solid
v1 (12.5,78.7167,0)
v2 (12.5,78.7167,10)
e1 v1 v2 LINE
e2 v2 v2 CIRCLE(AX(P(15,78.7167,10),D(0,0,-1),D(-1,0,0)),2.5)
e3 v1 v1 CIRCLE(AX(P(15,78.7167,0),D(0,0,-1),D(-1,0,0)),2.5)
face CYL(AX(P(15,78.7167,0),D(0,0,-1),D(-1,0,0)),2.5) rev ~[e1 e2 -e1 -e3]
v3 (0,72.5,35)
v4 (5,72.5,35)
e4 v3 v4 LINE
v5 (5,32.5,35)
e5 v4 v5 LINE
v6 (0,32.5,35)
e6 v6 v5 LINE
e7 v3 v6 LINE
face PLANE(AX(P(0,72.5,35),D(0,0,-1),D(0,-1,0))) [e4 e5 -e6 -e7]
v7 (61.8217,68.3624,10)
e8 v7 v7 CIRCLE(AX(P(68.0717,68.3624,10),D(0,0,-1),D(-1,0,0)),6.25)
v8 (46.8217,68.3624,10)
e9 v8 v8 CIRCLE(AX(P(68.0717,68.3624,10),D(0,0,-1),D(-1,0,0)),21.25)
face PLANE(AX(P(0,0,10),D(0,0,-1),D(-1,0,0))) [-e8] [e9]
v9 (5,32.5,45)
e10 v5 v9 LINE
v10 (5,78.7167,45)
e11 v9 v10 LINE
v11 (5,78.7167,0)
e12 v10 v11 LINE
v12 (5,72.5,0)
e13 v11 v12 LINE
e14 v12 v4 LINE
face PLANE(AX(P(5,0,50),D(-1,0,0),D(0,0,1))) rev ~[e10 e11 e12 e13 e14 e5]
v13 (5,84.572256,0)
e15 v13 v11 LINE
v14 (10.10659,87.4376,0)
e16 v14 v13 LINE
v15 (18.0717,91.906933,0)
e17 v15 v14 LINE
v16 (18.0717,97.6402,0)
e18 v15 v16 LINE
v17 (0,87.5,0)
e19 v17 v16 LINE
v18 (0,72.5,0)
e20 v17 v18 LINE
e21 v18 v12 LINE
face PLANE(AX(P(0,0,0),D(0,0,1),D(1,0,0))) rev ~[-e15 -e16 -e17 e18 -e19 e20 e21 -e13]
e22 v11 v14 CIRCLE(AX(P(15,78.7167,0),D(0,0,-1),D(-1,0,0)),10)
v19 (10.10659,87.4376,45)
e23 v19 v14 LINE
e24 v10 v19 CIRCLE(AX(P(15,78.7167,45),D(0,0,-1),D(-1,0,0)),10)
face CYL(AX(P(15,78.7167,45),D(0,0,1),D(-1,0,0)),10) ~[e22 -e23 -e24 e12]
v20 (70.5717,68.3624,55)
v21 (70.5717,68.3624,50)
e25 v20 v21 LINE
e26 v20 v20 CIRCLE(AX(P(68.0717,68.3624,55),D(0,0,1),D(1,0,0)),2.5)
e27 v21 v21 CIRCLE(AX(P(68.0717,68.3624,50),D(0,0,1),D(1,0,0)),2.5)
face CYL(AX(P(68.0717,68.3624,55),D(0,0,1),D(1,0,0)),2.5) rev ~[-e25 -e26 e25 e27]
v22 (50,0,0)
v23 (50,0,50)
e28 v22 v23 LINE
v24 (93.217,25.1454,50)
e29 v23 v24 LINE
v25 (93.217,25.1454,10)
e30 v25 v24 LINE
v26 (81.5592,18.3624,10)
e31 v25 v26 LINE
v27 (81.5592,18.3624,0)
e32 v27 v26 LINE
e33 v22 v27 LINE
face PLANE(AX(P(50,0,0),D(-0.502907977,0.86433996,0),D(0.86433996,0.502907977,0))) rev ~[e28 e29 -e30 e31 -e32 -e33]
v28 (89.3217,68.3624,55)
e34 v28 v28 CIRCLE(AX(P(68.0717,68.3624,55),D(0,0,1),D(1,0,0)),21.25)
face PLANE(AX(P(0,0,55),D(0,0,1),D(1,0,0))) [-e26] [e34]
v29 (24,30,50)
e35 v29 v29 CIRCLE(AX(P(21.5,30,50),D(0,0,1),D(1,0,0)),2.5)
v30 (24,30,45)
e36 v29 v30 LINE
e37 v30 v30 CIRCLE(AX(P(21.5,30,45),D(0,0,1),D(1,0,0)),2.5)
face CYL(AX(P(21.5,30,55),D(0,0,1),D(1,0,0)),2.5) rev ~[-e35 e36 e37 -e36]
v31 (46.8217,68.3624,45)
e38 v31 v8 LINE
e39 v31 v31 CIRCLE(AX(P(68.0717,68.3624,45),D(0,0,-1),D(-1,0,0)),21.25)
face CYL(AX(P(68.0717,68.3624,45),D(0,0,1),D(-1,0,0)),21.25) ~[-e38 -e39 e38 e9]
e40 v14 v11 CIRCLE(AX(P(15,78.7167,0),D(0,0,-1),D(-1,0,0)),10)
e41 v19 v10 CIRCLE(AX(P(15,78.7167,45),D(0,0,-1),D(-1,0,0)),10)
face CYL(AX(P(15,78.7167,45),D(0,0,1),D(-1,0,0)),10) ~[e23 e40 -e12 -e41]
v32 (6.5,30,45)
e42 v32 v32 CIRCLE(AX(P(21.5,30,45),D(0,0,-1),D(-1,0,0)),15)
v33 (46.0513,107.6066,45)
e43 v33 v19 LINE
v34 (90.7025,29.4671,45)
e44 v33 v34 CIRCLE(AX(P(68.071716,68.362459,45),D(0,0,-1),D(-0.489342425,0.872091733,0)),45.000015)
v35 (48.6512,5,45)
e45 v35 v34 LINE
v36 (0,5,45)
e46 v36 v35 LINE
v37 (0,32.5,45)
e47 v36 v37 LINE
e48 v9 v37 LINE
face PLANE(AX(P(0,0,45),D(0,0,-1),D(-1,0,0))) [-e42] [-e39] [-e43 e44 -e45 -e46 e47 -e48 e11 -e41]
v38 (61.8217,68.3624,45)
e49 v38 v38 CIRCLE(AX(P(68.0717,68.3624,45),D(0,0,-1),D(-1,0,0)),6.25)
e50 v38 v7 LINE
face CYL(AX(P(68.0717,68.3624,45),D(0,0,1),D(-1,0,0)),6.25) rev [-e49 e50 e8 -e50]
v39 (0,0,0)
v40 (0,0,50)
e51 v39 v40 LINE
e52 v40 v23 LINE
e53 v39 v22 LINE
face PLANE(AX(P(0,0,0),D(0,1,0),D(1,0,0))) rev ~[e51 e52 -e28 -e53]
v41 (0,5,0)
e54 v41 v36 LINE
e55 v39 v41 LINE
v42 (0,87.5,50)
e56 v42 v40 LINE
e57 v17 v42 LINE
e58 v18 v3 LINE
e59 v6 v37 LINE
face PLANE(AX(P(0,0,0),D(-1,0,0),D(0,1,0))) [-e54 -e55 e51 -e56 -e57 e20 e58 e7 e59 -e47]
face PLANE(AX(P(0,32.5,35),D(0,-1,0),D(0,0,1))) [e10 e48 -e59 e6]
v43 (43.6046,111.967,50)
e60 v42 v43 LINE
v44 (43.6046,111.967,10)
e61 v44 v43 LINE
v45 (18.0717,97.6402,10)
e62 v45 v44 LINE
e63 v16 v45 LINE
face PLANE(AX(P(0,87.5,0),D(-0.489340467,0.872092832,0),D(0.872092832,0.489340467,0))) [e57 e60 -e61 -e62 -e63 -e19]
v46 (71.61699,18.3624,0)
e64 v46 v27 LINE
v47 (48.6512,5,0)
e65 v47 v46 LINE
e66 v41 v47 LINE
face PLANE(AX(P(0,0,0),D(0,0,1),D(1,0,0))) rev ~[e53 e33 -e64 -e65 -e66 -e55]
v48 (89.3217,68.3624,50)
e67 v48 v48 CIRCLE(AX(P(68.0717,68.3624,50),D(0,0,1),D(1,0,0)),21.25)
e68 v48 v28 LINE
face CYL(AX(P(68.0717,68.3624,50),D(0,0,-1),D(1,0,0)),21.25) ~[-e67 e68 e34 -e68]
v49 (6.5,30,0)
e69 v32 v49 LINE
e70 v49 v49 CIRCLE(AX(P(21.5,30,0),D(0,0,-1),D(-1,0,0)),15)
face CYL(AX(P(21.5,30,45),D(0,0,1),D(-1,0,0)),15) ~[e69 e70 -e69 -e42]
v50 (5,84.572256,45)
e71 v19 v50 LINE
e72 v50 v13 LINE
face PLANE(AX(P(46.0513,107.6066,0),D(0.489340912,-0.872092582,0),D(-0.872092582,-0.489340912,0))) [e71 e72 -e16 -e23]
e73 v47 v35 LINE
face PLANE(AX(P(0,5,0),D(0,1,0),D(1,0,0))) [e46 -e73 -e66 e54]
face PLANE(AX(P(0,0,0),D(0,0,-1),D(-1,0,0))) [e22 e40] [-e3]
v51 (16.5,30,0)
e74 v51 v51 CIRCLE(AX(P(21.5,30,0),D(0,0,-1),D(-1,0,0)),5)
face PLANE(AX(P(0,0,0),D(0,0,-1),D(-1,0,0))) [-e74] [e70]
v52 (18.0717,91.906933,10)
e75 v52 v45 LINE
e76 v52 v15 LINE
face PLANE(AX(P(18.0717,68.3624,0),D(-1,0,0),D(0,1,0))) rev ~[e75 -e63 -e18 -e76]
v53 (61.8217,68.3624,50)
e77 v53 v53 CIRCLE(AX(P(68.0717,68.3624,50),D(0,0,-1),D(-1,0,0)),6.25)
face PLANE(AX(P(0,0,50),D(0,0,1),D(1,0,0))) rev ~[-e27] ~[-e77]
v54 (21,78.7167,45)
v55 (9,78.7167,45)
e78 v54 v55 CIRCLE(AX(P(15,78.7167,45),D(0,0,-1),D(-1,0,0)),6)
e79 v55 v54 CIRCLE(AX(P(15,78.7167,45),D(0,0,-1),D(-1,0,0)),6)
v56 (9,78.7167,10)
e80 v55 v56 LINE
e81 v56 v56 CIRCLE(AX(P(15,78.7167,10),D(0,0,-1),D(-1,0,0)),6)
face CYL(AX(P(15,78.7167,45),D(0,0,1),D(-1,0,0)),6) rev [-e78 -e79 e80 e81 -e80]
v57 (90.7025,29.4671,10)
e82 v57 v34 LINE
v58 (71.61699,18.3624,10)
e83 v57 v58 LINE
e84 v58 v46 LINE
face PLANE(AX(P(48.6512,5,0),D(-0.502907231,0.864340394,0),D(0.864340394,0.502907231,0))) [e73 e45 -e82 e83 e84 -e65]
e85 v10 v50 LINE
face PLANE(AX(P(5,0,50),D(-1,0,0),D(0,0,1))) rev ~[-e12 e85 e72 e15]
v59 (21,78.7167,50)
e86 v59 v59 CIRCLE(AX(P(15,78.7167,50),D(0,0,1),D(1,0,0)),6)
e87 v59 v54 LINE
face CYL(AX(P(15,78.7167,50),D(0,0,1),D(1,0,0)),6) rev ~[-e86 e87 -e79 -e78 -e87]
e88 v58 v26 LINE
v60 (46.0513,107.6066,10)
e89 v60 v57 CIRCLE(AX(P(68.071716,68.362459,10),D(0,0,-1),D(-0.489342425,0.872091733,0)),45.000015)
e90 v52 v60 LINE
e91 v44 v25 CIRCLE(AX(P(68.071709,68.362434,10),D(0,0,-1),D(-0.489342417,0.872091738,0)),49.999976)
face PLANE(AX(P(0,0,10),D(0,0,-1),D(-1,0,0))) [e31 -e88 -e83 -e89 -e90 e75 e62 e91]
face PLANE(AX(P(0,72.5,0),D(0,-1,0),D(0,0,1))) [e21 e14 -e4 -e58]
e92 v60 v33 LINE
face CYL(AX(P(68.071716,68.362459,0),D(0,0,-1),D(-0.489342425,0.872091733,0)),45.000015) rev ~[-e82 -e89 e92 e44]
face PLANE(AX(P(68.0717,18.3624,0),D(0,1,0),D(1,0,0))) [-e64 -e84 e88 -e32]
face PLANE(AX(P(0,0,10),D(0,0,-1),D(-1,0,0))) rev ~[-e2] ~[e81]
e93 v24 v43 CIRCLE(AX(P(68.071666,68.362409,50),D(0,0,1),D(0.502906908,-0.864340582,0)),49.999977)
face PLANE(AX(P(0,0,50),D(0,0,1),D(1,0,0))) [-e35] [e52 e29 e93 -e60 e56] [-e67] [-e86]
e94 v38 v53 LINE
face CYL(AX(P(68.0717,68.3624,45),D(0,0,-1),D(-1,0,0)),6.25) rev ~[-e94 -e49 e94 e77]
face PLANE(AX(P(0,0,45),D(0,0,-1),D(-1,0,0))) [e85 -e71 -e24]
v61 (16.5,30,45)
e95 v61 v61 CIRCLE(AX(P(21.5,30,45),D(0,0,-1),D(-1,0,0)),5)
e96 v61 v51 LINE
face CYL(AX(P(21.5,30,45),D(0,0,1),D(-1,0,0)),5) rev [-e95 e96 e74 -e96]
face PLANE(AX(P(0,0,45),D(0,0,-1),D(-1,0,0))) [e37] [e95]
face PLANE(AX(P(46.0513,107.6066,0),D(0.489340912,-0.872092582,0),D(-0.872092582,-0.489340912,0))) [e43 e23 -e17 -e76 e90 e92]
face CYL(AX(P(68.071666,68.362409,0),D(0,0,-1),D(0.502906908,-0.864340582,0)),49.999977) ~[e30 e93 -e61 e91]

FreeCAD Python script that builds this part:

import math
import FreeCAD as App
import Part
import Sketcher
from FreeCAD import Vector


def add_polygon(sketch, points):
    """Adds a closed chain of lines whose ends are joined by coincident constraints."""
    first, n = sketch.GeometryCount, len(points)
    for a, b in zip(points, points[1:] + points[:1]):
        sketch.addGeometry(Part.LineSegment(App.Vector(*a, 0), App.Vector(*b, 0)), False)
    for i in range(n):
        sketch.addConstraint(Sketcher.Constraint("Coincident", first + i, 2, first + (i + 1) % n, 1))

doc = App.newDocument("Part")
body = doc.addObject("PartDesign::Body", "Body")

sketch1 = body.newObject("Sketcher::SketchObject", "Sketch")
sketch1.AttachmentSupport = (doc.getObject("XY_Plane"), [""])
sketch1.MapMode = "FlatFace"
sketch1.addGeometry(Part.LineSegment(Vector(0, 87.5, 0), Vector(0, 0, 0)), False)
sketch1.addGeometry(Part.LineSegment(Vector(0, 0, 0), Vector(50, 0, 0)), False)
sketch1.addGeometry(Part.LineSegment(Vector(50, 0, 0), Vector(93.217, 25.1454, 0)), False)
sketch1.addGeometry(Part.ArcOfCircle(Part.Circle(Vector(68.0717, 68.3624, 0), Vector(0, 0, 1), 50), math.radians(-59.807522), math.radians(119.297342)), False)
sketch1.addGeometry(Part.LineSegment(Vector(43.6046, 111.967, 0), Vector(0, 87.5, 0)), False)
sketch1.addConstraint(Sketcher.Constraint("Coincident", 0, 2, 1, 1))
sketch1.addConstraint(Sketcher.Constraint("Coincident", 1, 2, 2, 1))
sketch1.addConstraint(Sketcher.Constraint("Tangent", 2, 2, 3, 1))
sketch1.addConstraint(Sketcher.Constraint("Tangent", 3, 2, 4, 1))
sketch1.addConstraint(Sketcher.Constraint("Coincident", 4, 2, 0, 1))
sketch1.addConstraint(Sketcher.Constraint("Vertical", 0))
sketch1.addConstraint(Sketcher.Constraint("Horizontal", 1))
sketch1.addConstraint(Sketcher.Constraint("Coincident", 0, 2, -1, 1))
sketch1.addConstraint(Sketcher.Constraint("Equal", 2, 4))
sketch1.addConstraint(Sketcher.Constraint("Radius", 3, 50.0))
sketch1.addConstraint(Sketcher.Constraint("DistanceX", 1, 1, 1, 2, 50.0))
sketch1.addConstraint(Sketcher.Constraint("Distance", 2, 50.0))
sketch1.addConstraint(Sketcher.Constraint("DistanceY", 0, 2, 0, 1, 87.5))
pad1 = body.newObject("PartDesign::Pad", "Pad")
pad1.Profile = sketch1
pad1.Length = 50

sketch2 = body.newObject("Sketcher::SketchObject", "Sketch001")
sketch2.AttachmentSupport = (doc.getObject("XY_Plane"), [""])
sketch2.MapMode = "FlatFace"
sketch2.addGeometry(Part.LineSegment(Vector(0, 5, 0), Vector(0, 81.7667, 0)), False)
sketch2.addGeometry(Part.LineSegment(Vector(0, 81.7667, 0), Vector(46.0513, 107.6066, 0)), False)
sketch2.addGeometry(Part.ArcOfCircle(Part.Circle(Vector(68.0717, 68.3624, 0), Vector(0, 0, 1), 45.000058), math.radians(-59.807489), math.radians(119.297315)), False)
sketch2.addGeometry(Part.LineSegment(Vector(90.7025, 29.4671, 0), Vector(48.6512, 5, 0)), False)
sketch2.addGeometry(Part.LineSegment(Vector(48.6512, 5, 0), Vector(0, 5, 0)), False)
sketch2.addConstraint(Sketcher.Constraint("Coincident", 0, 2, 1, 1))
sketch2.addConstraint(Sketcher.Constraint("Tangent", 1, 2, 2, 2))
sketch2.addConstraint(Sketcher.Constraint("Tangent", 2, 1, 3, 1))
sketch2.addConstraint(Sketcher.Constraint("Coincident", 3, 2, 4, 1))
sketch2.addConstraint(Sketcher.Constraint("Coincident", 4, 2, 0, 1))
sketch2.addConstraint(Sketcher.Constraint("Vertical", 0))
sketch2.addConstraint(Sketcher.Constraint("Horizontal", 4))
sketch2.addConstraint(Sketcher.Constraint("PointOnObject", 0, 2, -2))
sketch2.addConstraint(Sketcher.Constraint("DistanceY", -1, 1, 3, 2, 5.0))
sketch2.addConstraint(Sketcher.Constraint("Radius", 2, 45.0))
sketch2.addConstraint(Sketcher.Constraint("DistanceX", 1, 2, 3, 2, 2.6))
sketch2.addConstraint(Sketcher.Constraint("DistanceY", 0, 2, 1, 2, 25.84))
sketch2.addConstraint(Sketcher.Constraint("DistanceX", 4, 2, 4, 1, 48.6512))
sketch2.addConstraint(Sketcher.Constraint("DistanceY", 0, 1, 0, 2, 76.7667))
pocket1 = body.newObject("PartDesign::Pocket", "Pocket")
pocket1.Profile = sketch2
pocket1.Length = 45
pocket1.Reversed = True

sketch3 = body.newObject("Sketcher::SketchObject", "Sketch002")
sketch3.AttachmentSupport = (doc.getObject("XY_Plane"), [""])
sketch3.MapMode = "FlatFace"
sketch3.AttachmentOffset = App.Placement(Vector(0, 0, 45), App.Rotation())
sketch3.addGeometry(Part.Circle(Vector(68.0717, 68.3624, 0), Vector(0, 0, 1), 6.25), False)
sketch3.addConstraint(Sketcher.Constraint("Diameter", 0, 12.5))
sketch3.addConstraint(Sketcher.Constraint("DistanceX", -1, 1, 0, 3, 68.0717))
sketch3.addConstraint(Sketcher.Constraint("DistanceY", -1, 1, 0, 3, 68.3624))
pocket2 = body.newObject("PartDesign::Pocket", "Pocket001")
pocket2.Profile = sketch3
pocket2.Type = "ThroughAll"
pocket2.Reversed = True

sketch4 = body.newObject("Sketcher::SketchObject", "Sketch003")
sketch4.AttachmentSupport = (doc.getObject("XY_Plane"), [""])
sketch4.MapMode = "FlatFace"
sketch4.AttachmentOffset = App.Placement(Vector(0, 0, 45), App.Rotation())
sketch4.addGeometry(Part.Circle(Vector(68.0717, 68.3624, 0), Vector(0, 0, 1), 21.25), False)
sketch4.addGeometry(Part.Circle(Vector(68.0717, 68.3624, 0), Vector(0, 0, 1), 6.25), False)
sketch4.addConstraint(Sketcher.Constraint("Coincident", 1, 3, 0, 3))
sketch4.addConstraint(Sketcher.Constraint("Diameter", 0, 42.5))
sketch4.addConstraint(Sketcher.Constraint("Diameter", 1, 12.5))
sketch4.addConstraint(Sketcher.Constraint("DistanceX", -1, 1, 0, 3, 68.0717))
sketch4.addConstraint(Sketcher.Constraint("DistanceY", -1, 1, 0, 3, 68.3624))
pad2 = body.newObject("PartDesign::Pad", "Pad001")
pad2.Profile = sketch4
pad2.Length = 35
pad2.Reversed = True

sketch5 = body.newObject("Sketcher::SketchObject", "Sketch004")
sketch5.AttachmentSupport = (doc.getObject("XY_Plane"), [""])
sketch5.MapMode = "FlatFace"
sketch5.AttachmentOffset = App.Placement(Vector(0, 0, 50), App.Rotation())
sketch5.addGeometry(Part.Circle(Vector(68.0717, 68.3624, 0), Vector(0, 0, 1), 21.25), False)
sketch5.addConstraint(Sketcher.Constraint("Diameter", 0, 42.5))
sketch5.addConstraint(Sketcher.Constraint("DistanceX", -1, 1, 0, 3, 68.0717))
sketch5.addConstraint(Sketcher.Constraint("DistanceY", -1, 1, 0, 3, 68.3624))
pad3 = body.newObject("PartDesign::Pad", "Pad002")
pad3.Profile = sketch5
pad3.Length = 5

sketch6 = body.newObject("Sketcher::SketchObject", "Sketch005")
sketch6.AttachmentSupport = (doc.getObject("XY_Plane"), [""])
sketch6.MapMode = "FlatFace"
sketch6.addGeometry(Part.ArcOfCircle(Part.Circle(Vector(68.0717, 68.3624, 0), Vector(0, 0, 1), 50), math.radians(180), math.radians(270)), False)
sketch6.addGeometry(Part.LineSegment(Vector(18.0717, 68.3624, 0), Vector(18.0717, 97.6402, 0)), False)
sketch6.addGeometry(Part.LineSegment(Vector(18.071691, 97.640216, 0), Vector(43.6046, 111.967, 0)), False)
sketch6.addGeometry(Part.ArcOfCircle(Part.Circle(Vector(68.0717, 68.3624, 0), Vector(0, 0, 1), 50), math.radians(-59.807522), math.radians(119.297342)), False)
sketch6.addGeometry(Part.LineSegment(Vector(93.217, 25.1454, 0), Vector(81.559191, 18.362415, 0)), False)
sketch6.addGeometry(Part.LineSegment(Vector(81.5592, 18.3624, 0), Vector(68.0717, 18.3624, 0)), False)
sketch6.addConstraint(Sketcher.Constraint("Tangent", 0, 1, 1, 1))
sketch6.addConstraint(Sketcher.Constraint("Coincident", 1, 2, 2, 1))
sketch6.addConstraint(Sketcher.Constraint("Tangent", 2, 2, 3, 2))
sketch6.addConstraint(Sketcher.Constraint("Tangent", 3, 1, 4, 1))
sketch6.addConstraint(Sketcher.Constraint("Coincident", 4, 2, 5, 1))
sketch6.addConstraint(Sketcher.Constraint("Tangent", 5, 2, 0, 2))
sketch6.addConstraint(Sketcher.Constraint("Vertical", 1))
sketch6.addConstraint(Sketcher.Constraint("Horizontal", 5))
sketch6.addConstraint(Sketcher.Constraint("Coincident", 3, 3, 0, 3))
sketch6.addConstraint(Sketcher.Constraint("Equal", 0, 3))
sketch6.addConstraint(Sketcher.Constraint("Radius", 0, 50.0))
sketch6.addConstraint(Sketcher.Constraint("DistanceX", 5, 2, 5, 1, 13.4875))
sketch6.addConstraint(Sketcher.Constraint("DistanceY", 1, 1, 1, 2, 29.2778))
sketch6.addConstraint(Sketcher.Constraint("DistanceY", -1, 1, 2, 2, 111.967))
sketch6.addConstraint(Sketcher.Constraint("DistanceX", -1, 1, 3, 1, 93.217))
pocket3 = body.newObject("PartDesign::Pocket", "Pocket002")
pocket3.Profile = sketch6
pocket3.Length = 10
pocket3.Reversed = True

sketch7 = body.newObject("Sketcher::SketchObject", "Sketch006")
sketch7.AttachmentSupport = (doc.getObject("XY_Plane"), [""])
sketch7.MapMode = "FlatFace"
sketch7.AttachmentOffset = App.Placement(Vector(0, 0, 45), App.Rotation())
sketch7.addGeometry(Part.Circle(Vector(21.5, 30, 0), Vector(0, 0, 1), 15), False)
sketch7.addGeometry(Part.Circle(Vector(21.5, 30, 0), Vector(0, 0, 1), 5), False)
sketch7.addConstraint(Sketcher.Constraint("Coincident", 1, 3, 0, 3))
sketch7.addConstraint(Sketcher.Constraint("Diameter", 0, 30.0))
sketch7.addConstraint(Sketcher.Constraint("Diameter", 1, 10.0))
sketch7.addConstraint(Sketcher.Constraint("DistanceY", -1, 1, 0, 3, 30.0))
sketch7.addConstraint(Sketcher.Constraint("DistanceX", -1, 1, 0, 3, 21.5))
pad4 = body.newObject("PartDesign::Pad", "Pad003")
pad4.Profile = sketch7
pad4.Length = 45
pad4.Reversed = True

sketch8 = body.newObject("Sketcher::SketchObject", "Sketch007")
sketch8.AttachmentSupport = (doc.getObject("YZ_Plane"), [""])
sketch8.MapMode = "FlatFace"
add_polygon(sketch8, [(87.5, 50), (87.5, 0), (72.5, 0), (72.5, 35), (32.5, 35), (32.5, 50)])
sketch8.addConstraint(Sketcher.Constraint("Vertical", 0))
sketch8.addConstraint(Sketcher.Constraint("Horizontal", 1))
sketch8.addConstraint(Sketcher.Constraint("Vertical", 2))
sketch8.addConstraint(Sketcher.Constraint("Horizontal", 3))
sketch8.addConstraint(Sketcher.Constraint("Vertical", 4))
sketch8.addConstraint(Sketcher.Constraint("Horizontal", 5))
sketch8.addConstraint(Sketcher.Constraint("PointOnObject", 0, 2, -1))
sketch8.addConstraint(Sketcher.Constraint("Equal", 1, 4))
sketch8.addConstraint(Sketcher.Constraint("DistanceX", 1, 2, 1, 1, 15.0))
sketch8.addConstraint(Sketcher.Constraint("DistanceY", 0, 2, 0, 1, 50.0))
sketch8.addConstraint(Sketcher.Constraint("DistanceX", -1, 1, 3, 2, 32.5))
sketch8.addConstraint(Sketcher.Constraint("DistanceX", 3, 2, 3, 1, 40.0))
pad5 = body.newObject("PartDesign::Pad", "Pad004")
pad5.Profile = sketch8
pad5.Length = 5

sketch9 = body.newObject("Sketcher::SketchObject", "Sketch008")
sketch9.AttachmentSupport = (doc.getObject("XY_Plane"), [""])
sketch9.MapMode = "FlatFace"
sketch9.AttachmentOffset = App.Placement(Vector(0, 0, 45), App.Rotation())
sketch9.addGeometry(Part.Circle(Vector(15, 78.7167, 0), Vector(0, 0, 1), 10), False)
sketch9.addGeometry(Part.Circle(Vector(15, 78.7167, 0), Vector(0, 0, 1), 6), False)
sketch9.addConstraint(Sketcher.Constraint("Coincident", 1, 3, 0, 3))
sketch9.addConstraint(Sketcher.Constraint("Diameter", 0, 20.0))
sketch9.addConstraint(Sketcher.Constraint("Diameter", 1, 12.0))
sketch9.addConstraint(Sketcher.Constraint("DistanceX", -1, 1, 0, 3, 15.0))
sketch9.addConstraint(Sketcher.Constraint("DistanceY", -1, 1, 0, 3, 78.7167))
pad6 = body.newObject("PartDesign::Pad", "Pad005")
pad6.Profile = sketch9
pad6.Length = 45
pad6.Reversed = True

sketch10 = body.newObject("Sketcher::SketchObject", "Sketch009")
sketch10.AttachmentSupport = (doc.getObject("XY_Plane"), [""])
sketch10.MapMode = "FlatFace"
sketch10.addGeometry(Part.Circle(Vector(15, 78.7167, 0), Vector(0, 0, 1), 6), False)
sketch10.addGeometry(Part.Circle(Vector(15, 78.7167, 0), Vector(0, 0, 1), 2.5), False)
sketch10.addConstraint(Sketcher.Constraint("Coincident", 1, 3, 0, 3))
sketch10.addConstraint(Sketcher.Constraint("Diameter", 1, 5.0))
sketch10.addConstraint(Sketcher.Constraint("Diameter", 0, 12.0))
sketch10.addConstraint(Sketcher.Constraint("DistanceX", -1, 1, 0, 3, 15.0))
sketch10.addConstraint(Sketcher.Constraint("DistanceY", -1, 1, 0, 3, 78.7167))
pad7 = body.newObject("PartDesign::Pad", "Pad006")
pad7.Profile = sketch10
pad7.Length = 10

sketch11 = body.newObject("Sketcher::SketchObject", "Sketch010")
sketch11.AttachmentSupport = (doc.getObject("XY_Plane"), [""])
sketch11.MapMode = "FlatFace"
sketch11.AttachmentOffset = App.Placement(Vector(0, 0, 50), App.Rotation())
sketch11.addGeometry(Part.Circle(Vector(15, 78.7167, 0), Vector(0, 0, 1), 6), False)
sketch11.addConstraint(Sketcher.Constraint("Diameter", 0, 12.0))
sketch11.addConstraint(Sketcher.Constraint("DistanceX", -1, 1, 0, 3, 15.0))
sketch11.addConstraint(Sketcher.Constraint("DistanceY", -1, 1, 0, 3, 78.7167))
pocket4 = body.newObject("PartDesign::Pocket", "Pocket003")
pocket4.Profile = sketch11
pocket4.Length = 5

sketch12 = body.newObject("Sketcher::SketchObject", "Sketch011")
sketch12.AttachmentSupport = (doc.getObject("XY_Plane"), [""])
sketch12.MapMode = "FlatFace"
sketch12.AttachmentOffset = App.Placement(Vector(0, 0, 55), App.Rotation())
sketch12.addGeometry(Part.Circle(Vector(68.0717, 68.3624, 0), Vector(0, 0, 1), 2.5), False)
sketch12.addGeometry(Part.Circle(Vector(21.5, 30, 0), Vector(0, 0, 1), 2.5), False)
sketch12.addConstraint(Sketcher.Constraint("Equal", 0, 1))
sketch12.addConstraint(Sketcher.Constraint("Diameter", 0, 5.0))
sketch12.addConstraint(Sketcher.Constraint("DistanceY", -1, 1, 1, 3, 30.0))
sketch12.addConstraint(Sketcher.Constraint("DistanceX", -1, 1, 1, 3, 21.5))
sketch12.addConstraint(Sketcher.Constraint("DistanceX", -1, 1, 0, 3, 68.0717))
sketch12.addConstraint(Sketcher.Constraint("DistanceY", -1, 1, 0, 3, 68.3624))
pocket5 = body.newObject("PartDesign::Pocket", "Pocket004")
pocket5.Profile = sketch12
pocket5.Type = "ThroughAll"

doc.recompute()
